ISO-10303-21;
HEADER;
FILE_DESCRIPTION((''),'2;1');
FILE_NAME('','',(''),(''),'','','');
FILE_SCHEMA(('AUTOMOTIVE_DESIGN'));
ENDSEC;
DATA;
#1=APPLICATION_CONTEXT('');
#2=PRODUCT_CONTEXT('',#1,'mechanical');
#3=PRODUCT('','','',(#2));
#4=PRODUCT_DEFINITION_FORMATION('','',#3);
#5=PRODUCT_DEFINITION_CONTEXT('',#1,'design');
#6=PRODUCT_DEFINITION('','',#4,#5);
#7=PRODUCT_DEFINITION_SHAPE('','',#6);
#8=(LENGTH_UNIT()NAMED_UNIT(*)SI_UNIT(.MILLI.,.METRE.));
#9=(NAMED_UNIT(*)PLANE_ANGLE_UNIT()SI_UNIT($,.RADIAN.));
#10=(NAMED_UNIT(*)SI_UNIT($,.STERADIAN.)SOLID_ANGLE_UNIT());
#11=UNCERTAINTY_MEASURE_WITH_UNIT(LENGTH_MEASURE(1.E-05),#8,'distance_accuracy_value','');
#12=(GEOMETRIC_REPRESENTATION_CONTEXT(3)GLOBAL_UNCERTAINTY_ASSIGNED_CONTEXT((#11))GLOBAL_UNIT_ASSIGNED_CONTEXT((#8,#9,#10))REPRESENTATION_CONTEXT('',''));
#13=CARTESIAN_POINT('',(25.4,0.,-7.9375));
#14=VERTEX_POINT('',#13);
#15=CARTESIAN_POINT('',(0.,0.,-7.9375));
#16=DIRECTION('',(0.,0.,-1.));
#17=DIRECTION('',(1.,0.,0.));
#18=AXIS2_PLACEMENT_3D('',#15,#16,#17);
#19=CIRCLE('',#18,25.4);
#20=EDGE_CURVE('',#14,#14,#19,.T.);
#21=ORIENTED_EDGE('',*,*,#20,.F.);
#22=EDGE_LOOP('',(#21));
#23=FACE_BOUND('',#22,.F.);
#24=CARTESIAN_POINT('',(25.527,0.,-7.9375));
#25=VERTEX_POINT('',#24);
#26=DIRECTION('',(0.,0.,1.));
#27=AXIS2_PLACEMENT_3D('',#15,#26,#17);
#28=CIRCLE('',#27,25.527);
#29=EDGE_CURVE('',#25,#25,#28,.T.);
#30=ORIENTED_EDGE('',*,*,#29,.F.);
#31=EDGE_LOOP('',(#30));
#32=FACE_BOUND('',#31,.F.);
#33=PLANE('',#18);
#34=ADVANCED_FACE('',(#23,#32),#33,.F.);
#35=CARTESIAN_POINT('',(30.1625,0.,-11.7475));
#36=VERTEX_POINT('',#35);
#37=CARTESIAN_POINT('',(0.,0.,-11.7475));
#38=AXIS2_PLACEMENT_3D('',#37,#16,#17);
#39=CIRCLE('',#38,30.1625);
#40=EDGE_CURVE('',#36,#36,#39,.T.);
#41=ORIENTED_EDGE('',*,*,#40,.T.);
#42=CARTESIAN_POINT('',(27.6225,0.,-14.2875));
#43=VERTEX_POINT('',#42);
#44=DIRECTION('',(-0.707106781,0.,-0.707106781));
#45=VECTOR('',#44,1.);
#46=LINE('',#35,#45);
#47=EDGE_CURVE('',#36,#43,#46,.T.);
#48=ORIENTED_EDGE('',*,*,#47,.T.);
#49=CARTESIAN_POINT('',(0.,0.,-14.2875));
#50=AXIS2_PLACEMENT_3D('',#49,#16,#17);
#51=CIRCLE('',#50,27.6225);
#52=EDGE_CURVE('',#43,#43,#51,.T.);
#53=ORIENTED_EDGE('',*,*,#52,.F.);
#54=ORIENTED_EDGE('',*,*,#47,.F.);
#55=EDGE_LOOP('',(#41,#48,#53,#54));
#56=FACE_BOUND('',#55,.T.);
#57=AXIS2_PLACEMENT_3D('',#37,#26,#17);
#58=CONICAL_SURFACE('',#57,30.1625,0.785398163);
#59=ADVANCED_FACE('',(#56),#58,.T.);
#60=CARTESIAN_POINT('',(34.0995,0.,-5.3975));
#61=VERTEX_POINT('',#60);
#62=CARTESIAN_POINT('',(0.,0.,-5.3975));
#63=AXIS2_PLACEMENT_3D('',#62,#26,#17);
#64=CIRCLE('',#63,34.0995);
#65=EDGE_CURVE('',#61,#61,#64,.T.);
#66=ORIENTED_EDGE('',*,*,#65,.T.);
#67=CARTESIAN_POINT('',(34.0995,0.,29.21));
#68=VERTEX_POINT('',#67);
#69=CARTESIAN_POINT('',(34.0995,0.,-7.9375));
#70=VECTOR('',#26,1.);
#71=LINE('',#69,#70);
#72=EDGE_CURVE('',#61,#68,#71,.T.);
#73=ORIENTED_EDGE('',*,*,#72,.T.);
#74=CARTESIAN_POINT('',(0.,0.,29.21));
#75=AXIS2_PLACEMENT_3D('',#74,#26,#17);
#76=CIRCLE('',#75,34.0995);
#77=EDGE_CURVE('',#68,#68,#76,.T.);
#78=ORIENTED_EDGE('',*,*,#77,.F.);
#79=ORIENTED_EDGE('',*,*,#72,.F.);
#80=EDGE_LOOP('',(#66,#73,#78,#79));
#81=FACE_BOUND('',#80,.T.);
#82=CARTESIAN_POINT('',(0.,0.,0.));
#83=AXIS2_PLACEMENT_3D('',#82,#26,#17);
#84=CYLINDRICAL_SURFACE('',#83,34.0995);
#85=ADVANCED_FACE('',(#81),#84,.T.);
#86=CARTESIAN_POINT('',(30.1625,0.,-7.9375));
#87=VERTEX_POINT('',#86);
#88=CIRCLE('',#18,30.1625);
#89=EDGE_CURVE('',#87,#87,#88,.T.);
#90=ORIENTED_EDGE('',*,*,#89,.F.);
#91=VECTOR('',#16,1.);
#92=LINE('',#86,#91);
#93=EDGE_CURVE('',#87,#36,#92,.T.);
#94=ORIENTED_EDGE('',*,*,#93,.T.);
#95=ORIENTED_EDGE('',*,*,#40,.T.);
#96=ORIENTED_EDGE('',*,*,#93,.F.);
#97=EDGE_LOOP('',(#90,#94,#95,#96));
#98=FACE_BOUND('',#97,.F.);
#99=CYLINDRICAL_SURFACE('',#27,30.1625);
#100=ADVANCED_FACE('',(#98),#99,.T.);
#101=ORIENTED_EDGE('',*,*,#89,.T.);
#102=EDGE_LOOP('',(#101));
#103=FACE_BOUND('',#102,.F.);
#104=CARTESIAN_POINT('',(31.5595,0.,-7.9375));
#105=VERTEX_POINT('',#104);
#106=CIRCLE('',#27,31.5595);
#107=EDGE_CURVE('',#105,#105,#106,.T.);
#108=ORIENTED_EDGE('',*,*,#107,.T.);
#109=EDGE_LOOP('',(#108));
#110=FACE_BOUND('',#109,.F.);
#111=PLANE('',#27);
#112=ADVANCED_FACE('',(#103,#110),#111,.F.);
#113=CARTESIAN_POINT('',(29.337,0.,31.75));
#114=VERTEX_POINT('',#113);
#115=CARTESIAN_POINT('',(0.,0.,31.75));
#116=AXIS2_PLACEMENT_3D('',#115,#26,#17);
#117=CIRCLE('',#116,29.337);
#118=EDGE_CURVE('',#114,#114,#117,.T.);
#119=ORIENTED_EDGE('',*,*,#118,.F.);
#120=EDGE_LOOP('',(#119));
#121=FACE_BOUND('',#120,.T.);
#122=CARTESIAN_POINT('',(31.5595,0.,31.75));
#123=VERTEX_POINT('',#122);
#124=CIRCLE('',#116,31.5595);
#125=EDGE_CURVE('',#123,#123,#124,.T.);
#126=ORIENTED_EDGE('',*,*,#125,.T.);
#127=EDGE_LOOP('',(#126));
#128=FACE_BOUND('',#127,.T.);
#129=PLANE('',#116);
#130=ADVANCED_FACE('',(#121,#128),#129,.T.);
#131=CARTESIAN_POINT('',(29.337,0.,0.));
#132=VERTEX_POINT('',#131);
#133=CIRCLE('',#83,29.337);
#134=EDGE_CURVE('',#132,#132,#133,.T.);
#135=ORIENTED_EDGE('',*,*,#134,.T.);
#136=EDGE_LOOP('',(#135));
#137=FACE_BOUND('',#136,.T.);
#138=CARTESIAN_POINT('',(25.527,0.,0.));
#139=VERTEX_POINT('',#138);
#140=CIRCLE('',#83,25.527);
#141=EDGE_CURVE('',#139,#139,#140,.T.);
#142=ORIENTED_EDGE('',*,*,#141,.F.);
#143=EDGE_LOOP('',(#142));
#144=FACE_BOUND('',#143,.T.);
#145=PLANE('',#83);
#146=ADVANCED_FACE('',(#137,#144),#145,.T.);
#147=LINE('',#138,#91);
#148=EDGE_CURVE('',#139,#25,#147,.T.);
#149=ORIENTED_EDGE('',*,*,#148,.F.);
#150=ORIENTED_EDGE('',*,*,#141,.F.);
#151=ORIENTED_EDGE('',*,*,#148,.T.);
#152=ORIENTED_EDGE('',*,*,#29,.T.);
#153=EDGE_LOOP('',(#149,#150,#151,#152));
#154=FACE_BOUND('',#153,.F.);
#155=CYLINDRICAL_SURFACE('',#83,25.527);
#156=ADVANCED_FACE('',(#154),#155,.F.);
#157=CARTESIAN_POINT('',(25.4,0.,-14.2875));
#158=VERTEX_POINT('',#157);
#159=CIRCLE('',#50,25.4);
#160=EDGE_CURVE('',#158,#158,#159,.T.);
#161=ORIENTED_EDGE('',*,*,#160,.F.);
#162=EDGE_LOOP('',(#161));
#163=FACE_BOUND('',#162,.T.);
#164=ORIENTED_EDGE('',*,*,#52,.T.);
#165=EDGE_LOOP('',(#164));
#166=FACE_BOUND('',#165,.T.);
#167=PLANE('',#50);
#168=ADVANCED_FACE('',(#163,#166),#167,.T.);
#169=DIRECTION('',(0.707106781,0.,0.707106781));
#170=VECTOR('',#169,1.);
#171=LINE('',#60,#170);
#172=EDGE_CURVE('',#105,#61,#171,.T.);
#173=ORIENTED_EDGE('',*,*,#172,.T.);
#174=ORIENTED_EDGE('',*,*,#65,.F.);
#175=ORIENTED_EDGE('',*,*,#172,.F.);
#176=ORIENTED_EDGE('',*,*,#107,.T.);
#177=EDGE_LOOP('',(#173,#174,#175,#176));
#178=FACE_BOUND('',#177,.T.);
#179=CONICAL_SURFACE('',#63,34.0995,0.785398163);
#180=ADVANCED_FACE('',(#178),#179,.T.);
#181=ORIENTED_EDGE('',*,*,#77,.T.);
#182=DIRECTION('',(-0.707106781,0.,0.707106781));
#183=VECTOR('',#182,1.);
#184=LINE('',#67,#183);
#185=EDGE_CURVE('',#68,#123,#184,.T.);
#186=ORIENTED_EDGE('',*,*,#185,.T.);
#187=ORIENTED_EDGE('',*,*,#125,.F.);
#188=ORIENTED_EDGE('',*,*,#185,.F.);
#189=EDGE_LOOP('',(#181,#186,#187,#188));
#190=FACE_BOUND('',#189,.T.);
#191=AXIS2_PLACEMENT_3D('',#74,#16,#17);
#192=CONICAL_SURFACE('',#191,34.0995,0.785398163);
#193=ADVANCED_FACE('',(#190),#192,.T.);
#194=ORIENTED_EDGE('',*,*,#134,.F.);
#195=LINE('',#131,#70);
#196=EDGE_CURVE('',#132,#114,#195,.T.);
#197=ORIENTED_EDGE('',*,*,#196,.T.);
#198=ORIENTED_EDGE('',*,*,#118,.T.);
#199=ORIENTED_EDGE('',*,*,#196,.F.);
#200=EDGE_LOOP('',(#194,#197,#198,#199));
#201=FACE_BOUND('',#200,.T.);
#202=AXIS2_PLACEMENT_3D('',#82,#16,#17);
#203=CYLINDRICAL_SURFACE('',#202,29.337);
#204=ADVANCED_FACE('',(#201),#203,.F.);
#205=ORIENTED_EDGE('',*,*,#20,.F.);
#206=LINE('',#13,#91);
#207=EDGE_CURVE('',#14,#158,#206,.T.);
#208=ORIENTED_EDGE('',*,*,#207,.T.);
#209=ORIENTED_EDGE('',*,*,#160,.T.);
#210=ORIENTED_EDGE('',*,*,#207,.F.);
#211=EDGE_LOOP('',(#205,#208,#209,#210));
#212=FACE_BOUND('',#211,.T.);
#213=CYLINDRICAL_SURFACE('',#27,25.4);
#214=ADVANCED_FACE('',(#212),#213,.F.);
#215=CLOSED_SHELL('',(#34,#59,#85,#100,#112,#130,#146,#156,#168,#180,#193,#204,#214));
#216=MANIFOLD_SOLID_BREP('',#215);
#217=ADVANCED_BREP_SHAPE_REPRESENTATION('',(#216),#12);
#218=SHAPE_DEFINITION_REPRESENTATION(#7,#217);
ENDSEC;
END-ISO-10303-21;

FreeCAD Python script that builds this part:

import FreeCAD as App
import Part
import Sketcher
Q = App.Units.Quantity


def edges_at(feature, points):
    """Names of the edges that pass closest to the given points."""
    edges = feature.Shape.Edges
    near = lambda p: min(range(len(edges)), key=lambda i: edges[i].distToShape(Part.Vertex(*p))[0])
    return sorted({f"Edge{near(p) + 1}" for p in points})

doc = App.newDocument("Part")
body = doc.addObject("PartDesign::Body", "Body")

# Sketch on XY plane
sketch1 = body.newObject("Sketcher::SketchObject", "Sketch")
sketch1.AttachmentSupport = (doc.getObject("XY_Plane"), [""])
sketch1.MapMode = "FlatFace"
sketch1.addGeometry([
    Part.Circle(App.Vector(0, 0, 0), App.Vector(0, 0, 1), 34),
    Part.Circle(App.Vector(0, 0, 0), App.Vector(0, 0, 1), 29),
], False)
sketch1.addConstraint([
    Sketcher.Constraint("Coincident", 0, 3, -1, 1),
    Sketcher.Constraint("Coincident", 1, 3, -1, 1),
    Sketcher.Constraint("Diameter", 1, Q("2.31 in")),
    Sketcher.Constraint("Diameter", 0, Q("2.685 in")),
])
pad1 = body.newObject("PartDesign::Pad", "Pad")
pad1.Profile = sketch1
pad1.Length = Q("1.25 in")

# Sketch on XY plane
sketch2 = body.newObject("Sketcher::SketchObject", "Sketch001")
sketch2.AttachmentSupport = (doc.getObject("XY_Plane"), [""])
sketch2.MapMode = "FlatFace"
sketch2.addGeometry([
    Part.Circle(App.Vector(0, 0, 0), App.Vector(0, 0, 1), 34),
    Part.Circle(App.Vector(0, 0, 0), App.Vector(0, 0, 1), 26),
], False)
sketch2.addConstraint([
    Sketcher.Constraint("Coincident", 0, 3, -1, 1),
    Sketcher.Constraint("Coincident", 1, 3, -1, 1),
    Sketcher.Constraint("Diameter", 1, Q("2.01 in")),
    Sketcher.Constraint("Diameter", 0, Q("2.685 in")),
])
pad2 = body.newObject("PartDesign::Pad", "Pad001")
pad2.Profile = sketch2
pad2.Length = Q("0.3125 in")
pad2.Reversed = True

# Sketch on XY plane
sketch3 = body.newObject("Sketcher::SketchObject", "Sketch002")
sketch3.AttachmentSupport = (doc.getObject("XY_Plane"), [""])
sketch3.MapMode = "FlatFace"
sketch3.AttachmentOffset = App.Placement(App.Vector(0, 0, -0.3125 * 25.4), App.Rotation())
sketch3.addGeometry([
    Part.Circle(App.Vector(0, 0, 0), App.Vector(0, 0, 1), 30),
    Part.Circle(App.Vector(0, 0, 0), App.Vector(0, 0, 1), 25),
], False)
sketch3.addConstraint([
    Sketcher.Constraint("Coincident", 0, 3, -1, 1),
    Sketcher.Constraint("Coincident", 1, 3, -1, 1),
    Sketcher.Constraint("Diameter", 1, Q("2 in")),
    Sketcher.Constraint("Diameter", 0, Q("2.375 in")),
])
pad3 = body.newObject("PartDesign::Pad", "Pad002")
pad3.Profile = sketch3
pad3.Length = Q("0.25 in")
pad3.Reversed = True
doc.recompute()

chamfer = body.newObject("PartDesign::Chamfer", "Chamfer")
chamfer.Base = (pad3, edges_at(pad3, [(-34.099, 0, 31.75), (-34.099, 0, -7.938), (-30.163, 0, -14.287)]))
chamfer.Size = Q("0.1 in")

doc.recompute()
